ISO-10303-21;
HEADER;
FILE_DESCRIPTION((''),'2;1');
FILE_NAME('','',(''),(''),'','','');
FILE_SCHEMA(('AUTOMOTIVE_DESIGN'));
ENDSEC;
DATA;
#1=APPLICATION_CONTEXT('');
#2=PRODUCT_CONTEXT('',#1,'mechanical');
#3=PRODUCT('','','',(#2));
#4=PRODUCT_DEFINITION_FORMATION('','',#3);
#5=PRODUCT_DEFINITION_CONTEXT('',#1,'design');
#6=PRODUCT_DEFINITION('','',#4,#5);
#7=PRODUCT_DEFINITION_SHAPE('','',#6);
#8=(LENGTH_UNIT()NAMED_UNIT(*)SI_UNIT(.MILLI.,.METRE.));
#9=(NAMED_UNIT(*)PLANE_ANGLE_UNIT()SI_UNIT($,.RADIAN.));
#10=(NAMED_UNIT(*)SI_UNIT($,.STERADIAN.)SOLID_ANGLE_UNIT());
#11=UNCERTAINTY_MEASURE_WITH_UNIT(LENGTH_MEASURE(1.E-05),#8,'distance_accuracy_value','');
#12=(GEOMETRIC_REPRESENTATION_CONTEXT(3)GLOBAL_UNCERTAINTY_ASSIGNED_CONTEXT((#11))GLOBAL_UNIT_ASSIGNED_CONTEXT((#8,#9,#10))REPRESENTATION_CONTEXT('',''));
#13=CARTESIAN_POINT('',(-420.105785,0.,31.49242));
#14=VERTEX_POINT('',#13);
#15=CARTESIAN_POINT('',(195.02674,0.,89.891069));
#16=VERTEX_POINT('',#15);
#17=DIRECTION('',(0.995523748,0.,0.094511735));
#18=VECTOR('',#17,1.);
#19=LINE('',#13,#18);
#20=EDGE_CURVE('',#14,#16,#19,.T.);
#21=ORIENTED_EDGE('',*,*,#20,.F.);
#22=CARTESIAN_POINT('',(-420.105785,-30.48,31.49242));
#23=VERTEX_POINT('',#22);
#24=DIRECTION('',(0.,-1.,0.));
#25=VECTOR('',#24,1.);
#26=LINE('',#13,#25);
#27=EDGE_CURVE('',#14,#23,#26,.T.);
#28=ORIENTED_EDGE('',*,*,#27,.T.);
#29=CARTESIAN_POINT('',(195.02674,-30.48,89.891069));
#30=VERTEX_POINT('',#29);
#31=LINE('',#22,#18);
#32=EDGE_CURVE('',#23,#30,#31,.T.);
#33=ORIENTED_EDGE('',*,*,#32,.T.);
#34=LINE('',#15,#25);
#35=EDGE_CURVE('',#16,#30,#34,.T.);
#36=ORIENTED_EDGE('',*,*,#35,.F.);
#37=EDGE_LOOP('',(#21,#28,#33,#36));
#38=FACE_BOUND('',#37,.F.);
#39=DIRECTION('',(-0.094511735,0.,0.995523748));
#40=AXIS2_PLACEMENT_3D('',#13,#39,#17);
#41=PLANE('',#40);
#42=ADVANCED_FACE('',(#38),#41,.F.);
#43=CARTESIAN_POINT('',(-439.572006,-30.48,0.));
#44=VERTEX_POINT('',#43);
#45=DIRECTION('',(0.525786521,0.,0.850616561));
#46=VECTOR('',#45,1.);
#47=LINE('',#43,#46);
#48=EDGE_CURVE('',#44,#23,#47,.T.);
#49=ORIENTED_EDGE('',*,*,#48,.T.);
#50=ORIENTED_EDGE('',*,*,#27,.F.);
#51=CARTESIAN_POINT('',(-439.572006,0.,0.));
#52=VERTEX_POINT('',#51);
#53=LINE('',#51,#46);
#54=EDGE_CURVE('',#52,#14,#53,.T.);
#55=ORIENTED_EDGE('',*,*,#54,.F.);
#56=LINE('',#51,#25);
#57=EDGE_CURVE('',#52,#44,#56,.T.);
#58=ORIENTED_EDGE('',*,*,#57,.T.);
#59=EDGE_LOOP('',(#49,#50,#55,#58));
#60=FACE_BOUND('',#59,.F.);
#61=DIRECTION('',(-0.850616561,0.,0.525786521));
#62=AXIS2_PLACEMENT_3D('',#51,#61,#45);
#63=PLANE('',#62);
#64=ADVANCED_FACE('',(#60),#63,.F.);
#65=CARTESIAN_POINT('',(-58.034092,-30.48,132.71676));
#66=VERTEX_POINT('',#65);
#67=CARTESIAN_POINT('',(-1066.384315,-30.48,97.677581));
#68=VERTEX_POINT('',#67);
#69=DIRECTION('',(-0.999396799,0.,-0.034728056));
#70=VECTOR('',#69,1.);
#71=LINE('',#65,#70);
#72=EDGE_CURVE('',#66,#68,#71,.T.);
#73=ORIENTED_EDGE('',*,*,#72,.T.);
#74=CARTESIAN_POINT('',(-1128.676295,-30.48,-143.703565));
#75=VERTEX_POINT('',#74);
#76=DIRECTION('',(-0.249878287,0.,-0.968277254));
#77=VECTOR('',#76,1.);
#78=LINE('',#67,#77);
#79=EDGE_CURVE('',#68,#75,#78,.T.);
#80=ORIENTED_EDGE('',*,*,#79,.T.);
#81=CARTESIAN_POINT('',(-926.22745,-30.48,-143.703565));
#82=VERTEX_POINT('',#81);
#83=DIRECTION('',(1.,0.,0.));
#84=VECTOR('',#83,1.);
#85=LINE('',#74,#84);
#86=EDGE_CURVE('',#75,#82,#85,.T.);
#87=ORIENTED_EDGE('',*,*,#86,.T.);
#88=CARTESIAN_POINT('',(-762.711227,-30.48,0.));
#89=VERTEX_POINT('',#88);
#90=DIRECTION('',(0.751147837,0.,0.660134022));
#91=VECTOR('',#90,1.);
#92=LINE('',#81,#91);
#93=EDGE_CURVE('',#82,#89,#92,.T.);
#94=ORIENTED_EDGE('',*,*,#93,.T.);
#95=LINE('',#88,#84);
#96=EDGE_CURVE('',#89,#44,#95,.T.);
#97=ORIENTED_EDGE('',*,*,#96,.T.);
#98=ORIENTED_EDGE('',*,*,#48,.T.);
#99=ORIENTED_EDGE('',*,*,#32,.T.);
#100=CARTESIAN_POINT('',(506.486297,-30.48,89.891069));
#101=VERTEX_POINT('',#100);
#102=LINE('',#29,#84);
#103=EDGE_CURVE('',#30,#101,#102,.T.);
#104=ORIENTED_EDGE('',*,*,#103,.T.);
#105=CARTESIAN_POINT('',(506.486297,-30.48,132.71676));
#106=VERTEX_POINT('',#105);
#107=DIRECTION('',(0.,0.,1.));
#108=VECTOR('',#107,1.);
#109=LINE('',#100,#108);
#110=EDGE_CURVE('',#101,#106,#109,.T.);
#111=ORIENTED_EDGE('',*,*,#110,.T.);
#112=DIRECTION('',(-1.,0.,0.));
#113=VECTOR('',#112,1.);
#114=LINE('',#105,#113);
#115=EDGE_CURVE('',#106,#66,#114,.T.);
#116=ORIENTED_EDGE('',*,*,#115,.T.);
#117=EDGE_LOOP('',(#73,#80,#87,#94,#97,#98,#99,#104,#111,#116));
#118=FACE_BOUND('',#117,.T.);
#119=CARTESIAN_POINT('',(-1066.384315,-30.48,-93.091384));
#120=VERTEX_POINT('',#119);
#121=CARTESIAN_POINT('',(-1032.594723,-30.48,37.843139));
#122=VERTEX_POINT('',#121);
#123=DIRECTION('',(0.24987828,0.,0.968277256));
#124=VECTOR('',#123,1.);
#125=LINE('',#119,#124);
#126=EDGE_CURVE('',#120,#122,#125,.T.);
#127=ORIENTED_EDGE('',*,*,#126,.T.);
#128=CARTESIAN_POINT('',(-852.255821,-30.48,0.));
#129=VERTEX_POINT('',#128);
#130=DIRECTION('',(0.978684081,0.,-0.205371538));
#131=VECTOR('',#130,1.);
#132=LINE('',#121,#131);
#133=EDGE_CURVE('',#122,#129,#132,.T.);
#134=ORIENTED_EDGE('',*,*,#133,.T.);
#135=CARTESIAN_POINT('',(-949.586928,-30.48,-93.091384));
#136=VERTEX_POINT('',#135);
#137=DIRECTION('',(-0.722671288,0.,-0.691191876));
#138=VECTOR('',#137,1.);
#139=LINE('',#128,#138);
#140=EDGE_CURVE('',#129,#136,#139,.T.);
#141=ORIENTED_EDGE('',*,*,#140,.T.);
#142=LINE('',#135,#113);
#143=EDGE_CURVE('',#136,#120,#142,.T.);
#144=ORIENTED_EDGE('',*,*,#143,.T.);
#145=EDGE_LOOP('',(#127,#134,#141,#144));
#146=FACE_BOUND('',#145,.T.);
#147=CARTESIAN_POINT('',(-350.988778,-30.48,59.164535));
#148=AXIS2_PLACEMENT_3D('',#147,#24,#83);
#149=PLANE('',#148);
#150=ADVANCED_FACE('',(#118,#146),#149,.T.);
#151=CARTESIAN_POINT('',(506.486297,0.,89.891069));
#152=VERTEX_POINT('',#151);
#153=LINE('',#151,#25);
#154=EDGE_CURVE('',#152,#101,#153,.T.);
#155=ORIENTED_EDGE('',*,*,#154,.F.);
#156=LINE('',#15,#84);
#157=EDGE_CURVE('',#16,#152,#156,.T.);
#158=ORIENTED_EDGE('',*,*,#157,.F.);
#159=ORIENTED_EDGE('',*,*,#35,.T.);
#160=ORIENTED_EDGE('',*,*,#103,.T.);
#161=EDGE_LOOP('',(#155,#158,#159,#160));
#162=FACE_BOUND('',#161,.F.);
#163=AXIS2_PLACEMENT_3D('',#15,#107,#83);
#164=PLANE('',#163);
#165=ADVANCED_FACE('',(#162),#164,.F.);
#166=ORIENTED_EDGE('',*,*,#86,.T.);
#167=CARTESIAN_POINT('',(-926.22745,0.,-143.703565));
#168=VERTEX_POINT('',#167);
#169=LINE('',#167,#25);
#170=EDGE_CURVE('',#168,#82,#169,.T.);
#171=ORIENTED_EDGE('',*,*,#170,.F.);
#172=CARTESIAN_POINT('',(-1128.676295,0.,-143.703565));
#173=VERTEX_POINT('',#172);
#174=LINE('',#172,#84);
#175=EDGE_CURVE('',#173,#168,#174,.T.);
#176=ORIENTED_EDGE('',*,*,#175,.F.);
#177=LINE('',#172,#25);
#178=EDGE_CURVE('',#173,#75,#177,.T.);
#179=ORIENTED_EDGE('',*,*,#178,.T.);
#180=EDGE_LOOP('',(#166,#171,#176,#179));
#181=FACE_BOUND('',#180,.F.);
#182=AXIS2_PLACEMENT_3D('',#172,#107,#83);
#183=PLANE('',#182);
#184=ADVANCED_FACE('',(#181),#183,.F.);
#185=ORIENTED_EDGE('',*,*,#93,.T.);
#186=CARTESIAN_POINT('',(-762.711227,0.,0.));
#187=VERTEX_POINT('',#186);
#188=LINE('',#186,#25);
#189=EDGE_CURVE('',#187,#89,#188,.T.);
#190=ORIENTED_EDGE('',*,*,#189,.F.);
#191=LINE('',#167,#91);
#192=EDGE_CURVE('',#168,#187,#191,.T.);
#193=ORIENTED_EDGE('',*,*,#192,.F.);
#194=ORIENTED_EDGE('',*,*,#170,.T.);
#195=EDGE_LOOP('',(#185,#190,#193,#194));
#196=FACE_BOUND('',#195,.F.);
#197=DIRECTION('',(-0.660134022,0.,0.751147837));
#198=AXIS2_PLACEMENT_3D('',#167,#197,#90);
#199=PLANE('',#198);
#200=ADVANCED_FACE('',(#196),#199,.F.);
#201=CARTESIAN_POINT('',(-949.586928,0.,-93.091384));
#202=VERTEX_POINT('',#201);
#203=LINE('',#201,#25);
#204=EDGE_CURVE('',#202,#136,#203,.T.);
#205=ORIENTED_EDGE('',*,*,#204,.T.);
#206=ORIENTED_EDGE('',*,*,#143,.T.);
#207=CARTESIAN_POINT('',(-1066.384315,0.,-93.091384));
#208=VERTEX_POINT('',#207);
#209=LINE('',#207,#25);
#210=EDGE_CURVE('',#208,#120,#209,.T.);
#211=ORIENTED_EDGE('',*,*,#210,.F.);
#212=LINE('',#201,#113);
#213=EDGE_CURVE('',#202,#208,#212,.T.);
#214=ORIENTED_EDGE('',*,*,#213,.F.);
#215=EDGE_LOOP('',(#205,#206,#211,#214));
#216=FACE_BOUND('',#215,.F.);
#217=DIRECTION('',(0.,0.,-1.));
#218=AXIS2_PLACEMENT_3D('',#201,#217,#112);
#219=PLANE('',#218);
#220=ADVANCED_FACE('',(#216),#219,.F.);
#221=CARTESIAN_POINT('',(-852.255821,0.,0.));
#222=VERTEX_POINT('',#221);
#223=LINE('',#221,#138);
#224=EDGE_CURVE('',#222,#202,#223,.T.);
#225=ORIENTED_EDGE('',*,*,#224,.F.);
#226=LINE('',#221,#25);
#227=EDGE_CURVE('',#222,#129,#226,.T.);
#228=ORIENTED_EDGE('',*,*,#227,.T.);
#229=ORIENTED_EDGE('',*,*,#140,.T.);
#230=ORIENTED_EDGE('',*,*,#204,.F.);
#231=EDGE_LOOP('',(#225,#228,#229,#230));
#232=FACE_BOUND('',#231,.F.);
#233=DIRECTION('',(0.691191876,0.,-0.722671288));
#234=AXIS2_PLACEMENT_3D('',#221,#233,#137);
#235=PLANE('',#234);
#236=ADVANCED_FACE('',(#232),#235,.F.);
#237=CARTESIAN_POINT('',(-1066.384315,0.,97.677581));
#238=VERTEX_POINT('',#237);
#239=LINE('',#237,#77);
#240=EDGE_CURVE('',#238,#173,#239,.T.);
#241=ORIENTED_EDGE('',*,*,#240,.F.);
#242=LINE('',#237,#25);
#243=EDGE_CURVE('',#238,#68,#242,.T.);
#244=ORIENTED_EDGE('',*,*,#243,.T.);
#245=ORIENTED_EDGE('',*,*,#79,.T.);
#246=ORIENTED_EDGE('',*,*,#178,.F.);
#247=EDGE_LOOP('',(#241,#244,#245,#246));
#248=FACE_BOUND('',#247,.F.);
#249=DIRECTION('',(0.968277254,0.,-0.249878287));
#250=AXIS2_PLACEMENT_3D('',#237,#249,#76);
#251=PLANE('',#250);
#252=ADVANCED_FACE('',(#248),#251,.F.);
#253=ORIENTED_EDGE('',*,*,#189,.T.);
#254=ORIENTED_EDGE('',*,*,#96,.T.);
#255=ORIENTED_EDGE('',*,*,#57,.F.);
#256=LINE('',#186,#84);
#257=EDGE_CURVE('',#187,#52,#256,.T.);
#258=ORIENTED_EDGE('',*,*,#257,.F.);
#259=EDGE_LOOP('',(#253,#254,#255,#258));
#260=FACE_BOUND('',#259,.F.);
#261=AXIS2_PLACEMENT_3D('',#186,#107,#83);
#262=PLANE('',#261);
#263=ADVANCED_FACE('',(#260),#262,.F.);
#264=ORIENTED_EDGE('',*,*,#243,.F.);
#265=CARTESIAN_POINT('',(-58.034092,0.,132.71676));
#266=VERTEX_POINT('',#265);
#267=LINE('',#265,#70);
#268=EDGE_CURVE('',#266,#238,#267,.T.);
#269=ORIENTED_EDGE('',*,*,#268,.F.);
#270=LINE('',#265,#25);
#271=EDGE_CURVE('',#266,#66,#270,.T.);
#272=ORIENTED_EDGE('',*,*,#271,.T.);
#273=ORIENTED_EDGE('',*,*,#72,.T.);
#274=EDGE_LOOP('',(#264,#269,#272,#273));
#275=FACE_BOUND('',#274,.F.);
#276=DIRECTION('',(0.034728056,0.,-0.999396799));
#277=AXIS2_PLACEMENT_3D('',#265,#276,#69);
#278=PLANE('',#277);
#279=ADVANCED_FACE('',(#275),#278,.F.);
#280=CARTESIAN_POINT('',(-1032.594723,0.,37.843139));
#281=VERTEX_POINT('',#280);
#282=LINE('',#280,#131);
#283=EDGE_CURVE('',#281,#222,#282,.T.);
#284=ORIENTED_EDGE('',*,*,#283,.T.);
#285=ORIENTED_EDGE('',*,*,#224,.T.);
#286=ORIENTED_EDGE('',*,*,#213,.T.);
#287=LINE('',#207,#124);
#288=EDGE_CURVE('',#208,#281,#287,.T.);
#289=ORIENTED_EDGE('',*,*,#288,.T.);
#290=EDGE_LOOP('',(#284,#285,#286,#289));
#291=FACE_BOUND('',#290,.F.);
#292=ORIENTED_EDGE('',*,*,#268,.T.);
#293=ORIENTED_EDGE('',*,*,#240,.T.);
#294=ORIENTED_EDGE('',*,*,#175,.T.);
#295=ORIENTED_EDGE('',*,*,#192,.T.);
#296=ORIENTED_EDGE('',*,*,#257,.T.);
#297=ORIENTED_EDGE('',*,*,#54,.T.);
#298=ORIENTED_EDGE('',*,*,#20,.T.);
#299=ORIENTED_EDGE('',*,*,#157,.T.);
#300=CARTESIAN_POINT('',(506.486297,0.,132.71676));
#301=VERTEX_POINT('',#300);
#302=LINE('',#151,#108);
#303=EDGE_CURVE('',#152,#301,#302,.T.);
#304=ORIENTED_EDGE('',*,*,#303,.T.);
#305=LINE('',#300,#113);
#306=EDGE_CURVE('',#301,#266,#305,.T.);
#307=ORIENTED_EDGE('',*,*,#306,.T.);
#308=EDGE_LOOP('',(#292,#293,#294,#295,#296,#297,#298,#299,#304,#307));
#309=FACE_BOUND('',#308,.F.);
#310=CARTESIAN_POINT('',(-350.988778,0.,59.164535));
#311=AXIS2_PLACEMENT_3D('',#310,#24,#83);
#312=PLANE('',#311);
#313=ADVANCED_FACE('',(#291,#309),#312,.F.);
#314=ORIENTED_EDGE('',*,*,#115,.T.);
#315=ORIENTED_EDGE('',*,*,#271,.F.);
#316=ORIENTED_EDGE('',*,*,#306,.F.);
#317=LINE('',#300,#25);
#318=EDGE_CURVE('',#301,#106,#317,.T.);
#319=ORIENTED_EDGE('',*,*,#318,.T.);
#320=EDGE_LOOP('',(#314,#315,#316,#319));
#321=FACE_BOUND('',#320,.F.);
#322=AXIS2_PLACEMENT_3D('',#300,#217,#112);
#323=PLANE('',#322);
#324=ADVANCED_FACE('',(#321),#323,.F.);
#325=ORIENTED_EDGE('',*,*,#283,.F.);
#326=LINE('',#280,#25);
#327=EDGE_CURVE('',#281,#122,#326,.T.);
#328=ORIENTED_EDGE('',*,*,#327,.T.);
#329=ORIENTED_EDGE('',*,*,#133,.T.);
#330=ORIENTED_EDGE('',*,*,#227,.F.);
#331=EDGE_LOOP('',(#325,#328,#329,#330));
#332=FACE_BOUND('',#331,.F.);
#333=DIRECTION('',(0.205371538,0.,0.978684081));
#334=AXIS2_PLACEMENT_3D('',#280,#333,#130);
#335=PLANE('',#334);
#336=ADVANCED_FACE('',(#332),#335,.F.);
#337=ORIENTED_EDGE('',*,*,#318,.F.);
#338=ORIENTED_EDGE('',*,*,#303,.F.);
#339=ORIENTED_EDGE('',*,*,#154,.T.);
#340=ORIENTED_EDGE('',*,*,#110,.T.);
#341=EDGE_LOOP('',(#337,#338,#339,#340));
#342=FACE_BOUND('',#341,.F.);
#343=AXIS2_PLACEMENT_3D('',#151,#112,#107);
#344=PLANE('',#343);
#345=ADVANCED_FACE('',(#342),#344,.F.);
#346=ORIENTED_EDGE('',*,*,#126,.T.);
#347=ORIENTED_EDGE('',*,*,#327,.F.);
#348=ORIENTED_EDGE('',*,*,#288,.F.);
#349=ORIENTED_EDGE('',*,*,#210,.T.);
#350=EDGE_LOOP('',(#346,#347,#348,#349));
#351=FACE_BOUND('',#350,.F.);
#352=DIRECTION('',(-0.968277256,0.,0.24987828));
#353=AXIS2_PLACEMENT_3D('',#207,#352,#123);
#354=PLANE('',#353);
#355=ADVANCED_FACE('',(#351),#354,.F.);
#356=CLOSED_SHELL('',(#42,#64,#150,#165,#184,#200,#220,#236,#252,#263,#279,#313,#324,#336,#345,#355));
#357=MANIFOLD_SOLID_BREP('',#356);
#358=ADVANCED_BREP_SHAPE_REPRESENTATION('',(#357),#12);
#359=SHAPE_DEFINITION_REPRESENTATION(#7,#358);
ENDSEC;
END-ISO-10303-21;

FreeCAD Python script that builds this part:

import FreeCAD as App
import Part
import Sketcher

V = App.Vector
Q = App.Units.Quantity

doc = App.newDocument("Part")
body = doc.addObject("PartDesign::Body", "Body")

sketch1 = body.newObject("Sketcher::SketchObject", "Sketch")
sketch1.AttachmentSupport = (doc.getObject("XZ_Plane"), [""])
sketch1.MapMode = "FlatFace"
sketch1.addGeometry([
    Part.LineSegment(V(-58.034092, 132.71676, 0), V(-1066.384315, 97.677581, 0)),
    Part.LineSegment(V(-1066.384315, 97.677581, 0), V(-1128.676295, -143.703565, 0)),
    Part.LineSegment(V(-1128.676295, -143.703565, 0), V(-926.22745, -143.703565, 0)),
    Part.LineSegment(V(-926.22745, -143.703565, 0), V(-762.711227, 0, 0)),
    Part.LineSegment(V(-762.711227, 0, 0), V(-439.572006, 0, 0)),
    Part.LineSegment(V(-439.572006, 0, 0), V(-420.105785, 31.49242, 0)),
    Part.LineSegment(V(-420.105785, 31.49242, 0), V(195.02674, 89.891069, 0)),
    Part.LineSegment(V(195.02674, 89.891069, 0), V(506.486297, 89.891069, 0)),
    Part.LineSegment(V(506.486297, 89.891069, 0), V(506.486297, 132.71676, 0)),
    Part.LineSegment(V(506.486297, 132.71676, 0), V(-58.034092, 132.71676, 0)),
    Part.LineSegment(V(-852.255821, 0, 0), V(-949.586928, -93.091384, 0)),
    Part.LineSegment(V(-949.586928, -93.091384, 0), V(-1066.384315, -93.091384, 0)),
    Part.LineSegment(V(-1066.384315, -93.091384, 0), V(-1032.594723, 37.843139, 0)),
    Part.LineSegment(V(-1032.594723, 37.843139, 0), V(-852.255821, 0, 0)),
], False)
sketch1.addConstraint([
    Sketcher.Constraint("Coincident", 0, 2, 1, 1),
    Sketcher.Constraint("Coincident", 1, 2, 2, 1),
    Sketcher.Constraint("Coincident", 2, 2, 3, 1),
    Sketcher.Constraint("Coincident", 3, 2, 4, 1),
    Sketcher.Constraint("Coincident", 4, 2, 5, 1),
    Sketcher.Constraint("Coincident", 5, 2, 6, 1),
    Sketcher.Constraint("Coincident", 6, 2, 7, 1),
    Sketcher.Constraint("Coincident", 7, 2, 8, 1),
    Sketcher.Constraint("Coincident", 8, 2, 9, 1),
    Sketcher.Constraint("Coincident", 9, 2, 0, 1),
    Sketcher.Constraint("Coincident", 10, 2, 11, 1),
    Sketcher.Constraint("Coincident", 11, 2, 12, 1),
    Sketcher.Constraint("Coincident", 12, 2, 13, 1),
    Sketcher.Constraint("Coincident", 13, 2, 10, 1),
    Sketcher.Constraint("Horizontal", 2),
    Sketcher.Constraint("Horizontal", 4),
    Sketcher.Constraint("Horizontal", 7),
    Sketcher.Constraint("Vertical", 8),
    Sketcher.Constraint("Horizontal", 9),
    Sketcher.Constraint("Horizontal", 11),
    Sketcher.Constraint("PointOnObject", 3, 2, -1),
    Sketcher.Constraint("PointOnObject", 13, 2, -1),
    Sketcher.Constraint("Parallel", 1, 12),
    Sketcher.Constraint("Vertical", 0, 2, 11, 2),
    Sketcher.Constraint("DistanceX", 4, 1, 4, 2, Q("323.139221 mm")),
    Sketcher.Constraint("DistanceX", 9, 2, 9, 1, Q("564.520389 mm")),
    Sketcher.Constraint("DistanceY", 8, 1, 8, 2, Q("42.825691 mm")),
    Sketcher.Constraint("DistanceX", 10, 2, 3, 2, Q("186.875701 mm")),
    Sketcher.Constraint("DistanceX", 12, 2, 13, 2, Q("180.338902 mm")),
    Sketcher.Constraint("Distance", 3, Q("217.68847 mm")),
    Sketcher.Constraint("Distance", 5, Q("37.023051 mm")),
    Sketcher.Constraint("DistanceX", 2, 1, 2, 2, Q("202.448845 mm")),
    Sketcher.Constraint("DistanceX", 7, 1, 7, 2, Q("311.459557 mm")),
    Sketcher.Constraint("DistanceX", 11, 2, 11, 1, Q("116.797387 mm")),
    Sketcher.Constraint("DistanceY", -1, 1, 0, 2, Q("97.677581 mm")),
    Sketcher.Constraint("DistanceX", 2, 2, -1, 1, Q("926.22745 mm")),
    Sketcher.Constraint("DistanceY", -1, 1, 5, 2, Q("31.49242 mm")),
    Sketcher.Constraint("DistanceX", -1, 1, 6, 2, Q("195.02674 mm")),
    Sketcher.Constraint("DistanceY", -1, 1, 6, 2, Q("89.891069 mm")),
    Sketcher.Constraint("DistanceY", -1, 1, 12, 2, Q("37.843139 mm")),
    Sketcher.Constraint("DistanceX", 13, 2, -1, 1, Q("852.255821 mm")),
    Sketcher.Constraint("DistanceX", 1, 2, 0, 2, Q("62.29198 mm")),
])
pad1 = body.newObject("PartDesign::Pad", "Pad")
pad1.Profile = sketch1
pad1.Length = Q("1.2 in")

doc.recompute()
